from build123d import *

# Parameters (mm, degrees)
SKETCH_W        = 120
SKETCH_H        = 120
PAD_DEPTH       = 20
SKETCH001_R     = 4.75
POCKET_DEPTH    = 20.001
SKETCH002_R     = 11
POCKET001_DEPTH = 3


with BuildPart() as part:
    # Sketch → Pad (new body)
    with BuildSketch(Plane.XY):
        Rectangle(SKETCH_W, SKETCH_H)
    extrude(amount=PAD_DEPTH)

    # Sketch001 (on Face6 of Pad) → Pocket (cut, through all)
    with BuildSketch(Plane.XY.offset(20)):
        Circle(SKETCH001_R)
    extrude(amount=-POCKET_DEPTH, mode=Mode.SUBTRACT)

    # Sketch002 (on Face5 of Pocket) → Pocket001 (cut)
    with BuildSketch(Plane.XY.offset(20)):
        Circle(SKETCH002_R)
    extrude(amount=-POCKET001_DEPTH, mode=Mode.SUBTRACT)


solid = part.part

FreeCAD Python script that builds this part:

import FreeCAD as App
import Part
import Sketcher

V = App.Vector
Q = App.Units.Quantity


def add_polygon(sketch, points):
    """Adds a closed chain of lines whose ends are joined by coincident constraints."""
    first, n = sketch.GeometryCount, len(points)
    for a, b in zip(points, points[1:] + points[:1]):
        sketch.addGeometry(Part.LineSegment(App.Vector(*a, 0), App.Vector(*b, 0)), False)
    for i in range(n):
        sketch.addConstraint(Sketcher.Constraint("Coincident", first + i, 2, first + (i + 1) % n, 1))

doc = App.newDocument("Part")
params = doc.addObject("Spreadsheet::Sheet", "Params")
for row, (alias, value) in enumerate([
    ("sketch1_width", "120 mm"),
    ("pad1_length", "20 mm"),
    ("sketch2_diameter", "9.5 mm"),
    ("sketch3_diameter", "22 mm"),
    ("pocket2_length", "3 mm"),
], start=1):
    params.set(f"A{row}", alias)
    params.set(f"B{row}", "=" + value)
    params.setAlias(f"B{row}", alias)

body = doc.addObject("PartDesign::Body", "Body")

# Sketch on XY plane
sketch1 = doc.addObject("Sketcher::SketchObject", "Sketch")
body.addObject(sketch1)
sketch1.AttachmentSupport = (doc.XY_Plane, [""])
sketch1.MapMode = "FlatFace"
add_polygon(sketch1, [(-60, 60), (-60, -60), (60, -60), (60, 60)])  # lines 0-3
sketch1.addConstraint(Sketcher.Constraint("Vertical", 0))
sketch1.addConstraint(Sketcher.Constraint("Horizontal", 1))
sketch1.addConstraint(Sketcher.Constraint("Vertical", 2))
sketch1.addConstraint(Sketcher.Constraint("Horizontal", 3))
sketch1.addConstraint(Sketcher.Constraint("Symmetric", 0, 2, 2, 2, -1, 1))
sketch1.addConstraint(Sketcher.Constraint("Equal", 3, 0))
sketch1.addConstraint(Sketcher.Constraint("DistanceX", 1, 1, 1, 2, Q("120 mm")))
sketch1.setExpression("Constraints[10]", "Params.sketch1_width")
pad1 = doc.addObject("PartDesign::Pad", "Pad")
body.addObject(pad1)
pad1.Profile = sketch1
pad1.setExpression("Length", "Params.pad1_length")

# Sketch on XY plane
sketch2 = doc.addObject("Sketcher::SketchObject", "Sketch001")
body.addObject(sketch2)
sketch2.AttachmentSupport = (doc.XY_Plane, [""])
sketch2.MapMode = "FlatFace"
sketch2.AttachmentOffset = App.Placement(V(0, 0, 20), App.Rotation())
sketch2.addGeometry(Part.Circle(V(0, 0, 0), V(0, 0, 1), 4.75), False)
sketch2.addConstraint(Sketcher.Constraint("Coincident", 0, 3, -1, 1))
sketch2.addConstraint(Sketcher.Constraint("Diameter", 0, Q("9.5 mm")))
sketch2.setExpression("Constraints[1]", "Params.sketch2_diameter")
pocket1 = doc.addObject("PartDesign::Pocket", "Pocket")
body.addObject(pocket1)
pocket1.Profile = sketch2
pocket1.Type = "ThroughAll"

# Sketch on XY plane
sketch3 = doc.addObject("Sketcher::SketchObject", "Sketch002")
body.addObject(sketch3)
sketch3.AttachmentSupport = (doc.XY_Plane, [""])
sketch3.MapMode = "FlatFace"
sketch3.AttachmentOffset = App.Placement(V(0, 0, 20), App.Rotation())
sketch3.addGeometry(Part.Circle(V(0, 0, 0), V(0, 0, 1), 11), False)
sketch3.addConstraint(Sketcher.Constraint("Coincident", 0, 3, -1, 1))
sketch3.addConstraint(Sketcher.Constraint("Diameter", 0, Q("22 mm")))
sketch3.setExpression("Constraints[1]", "Params.sketch3_diameter")
pocket2 = doc.addObject("PartDesign::Pocket", "Pocket001")
body.addObject(pocket2)
pocket2.Profile = sketch3
pocket2.setExpression("Length", "Params.pocket2_length")

doc.recompute()
